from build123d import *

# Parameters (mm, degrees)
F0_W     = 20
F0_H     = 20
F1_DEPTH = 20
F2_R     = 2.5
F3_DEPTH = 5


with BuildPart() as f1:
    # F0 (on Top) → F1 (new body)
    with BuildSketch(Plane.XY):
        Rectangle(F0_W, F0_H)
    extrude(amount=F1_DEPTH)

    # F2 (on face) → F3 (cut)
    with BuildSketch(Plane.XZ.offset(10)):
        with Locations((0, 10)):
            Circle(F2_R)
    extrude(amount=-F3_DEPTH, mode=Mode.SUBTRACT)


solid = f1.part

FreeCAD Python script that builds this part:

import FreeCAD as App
import Part
import Sketcher

V = App.Vector


def add_polygon(sketch, points):
    """Adds a closed chain of lines whose ends are joined by coincident constraints."""
    first, n = sketch.GeometryCount, len(points)
    for a, b in zip(points, points[1:] + points[:1]):
        sketch.addGeometry(Part.LineSegment(App.Vector(*a, 0), App.Vector(*b, 0)), False)
    for i in range(n):
        sketch.addConstraint(Sketcher.Constraint("Coincident", first + i, 2, first + (i + 1) % n, 1))

doc = App.newDocument("Part")
params = doc.addObject("Spreadsheet::Sheet", "Params")
for row, (alias, value) in enumerate([
    ("sketch1_width", "20 mm"),
    ("pad1_length", "20 mm"),
    ("sketch2_diameter", "5 mm"),
    ("pocket1_length", "5 mm"),
], start=1):
    params.set(f"A{row}", alias)
    params.set(f"B{row}", "=" + value)
    params.setAlias(f"B{row}", alias)

body = doc.addObject("PartDesign::Body", "Body")

sketch1 = body.newObject("Sketcher::SketchObject", "Sketch")
sketch1.AttachmentSupport = (doc.getObject("XY_Plane"), [""])
sketch1.MapMode = "FlatFace"
add_polygon(sketch1, [(-10, 10), (-10, -10), (10, -10), (10, 10)])
sketch1.addConstraint([
    Sketcher.Constraint("Vertical", 0),
    Sketcher.Constraint("Horizontal", 1),
    Sketcher.Constraint("Vertical", 2),
    Sketcher.Constraint("Horizontal", 3),
    Sketcher.Constraint("Symmetric", 0, 2, 2, 2, -1, 1),
    Sketcher.Constraint("Equal", 3, 0),
    Sketcher.Constraint("DistanceX", 1, 1, 1, 2, 20.0),
])
sketch1.setExpression("Constraints[10]", "Params.sketch1_width")
pad1 = body.newObject("PartDesign::Pad", "Pad")
pad1.Profile = sketch1
pad1.setExpression("Length", "Params.pad1_length")

sketch2 = body.newObject("Sketcher::SketchObject", "Sketch001")
sketch2.AttachmentSupport = (doc.getObject("XZ_Plane"), [""])
sketch2.MapMode = "FlatFace"
sketch2.AttachmentOffset = App.Placement(V(0, 0, 10), App.Rotation())
sketch2.addGeometry(Part.Circle(V(0, 10, 0), V(0, 0, 1), 2.5), False)
sketch2.addConstraint([
    Sketcher.Constraint("PointOnObject", 0, 3, -2),
    Sketcher.Constraint("Diameter", 0, 5.0),
    Sketcher.Constraint("DistanceY", -1, 1, 0, 3, 10.0),
])
sketch2.setExpression("Constraints[1]", "Params.sketch2_diameter")
pocket1 = body.newObject("PartDesign::Pocket", "Pocket")
pocket1.Profile = sketch2
pocket1.setExpression("Length", "Params.pocket1_length")

doc.recompute()
